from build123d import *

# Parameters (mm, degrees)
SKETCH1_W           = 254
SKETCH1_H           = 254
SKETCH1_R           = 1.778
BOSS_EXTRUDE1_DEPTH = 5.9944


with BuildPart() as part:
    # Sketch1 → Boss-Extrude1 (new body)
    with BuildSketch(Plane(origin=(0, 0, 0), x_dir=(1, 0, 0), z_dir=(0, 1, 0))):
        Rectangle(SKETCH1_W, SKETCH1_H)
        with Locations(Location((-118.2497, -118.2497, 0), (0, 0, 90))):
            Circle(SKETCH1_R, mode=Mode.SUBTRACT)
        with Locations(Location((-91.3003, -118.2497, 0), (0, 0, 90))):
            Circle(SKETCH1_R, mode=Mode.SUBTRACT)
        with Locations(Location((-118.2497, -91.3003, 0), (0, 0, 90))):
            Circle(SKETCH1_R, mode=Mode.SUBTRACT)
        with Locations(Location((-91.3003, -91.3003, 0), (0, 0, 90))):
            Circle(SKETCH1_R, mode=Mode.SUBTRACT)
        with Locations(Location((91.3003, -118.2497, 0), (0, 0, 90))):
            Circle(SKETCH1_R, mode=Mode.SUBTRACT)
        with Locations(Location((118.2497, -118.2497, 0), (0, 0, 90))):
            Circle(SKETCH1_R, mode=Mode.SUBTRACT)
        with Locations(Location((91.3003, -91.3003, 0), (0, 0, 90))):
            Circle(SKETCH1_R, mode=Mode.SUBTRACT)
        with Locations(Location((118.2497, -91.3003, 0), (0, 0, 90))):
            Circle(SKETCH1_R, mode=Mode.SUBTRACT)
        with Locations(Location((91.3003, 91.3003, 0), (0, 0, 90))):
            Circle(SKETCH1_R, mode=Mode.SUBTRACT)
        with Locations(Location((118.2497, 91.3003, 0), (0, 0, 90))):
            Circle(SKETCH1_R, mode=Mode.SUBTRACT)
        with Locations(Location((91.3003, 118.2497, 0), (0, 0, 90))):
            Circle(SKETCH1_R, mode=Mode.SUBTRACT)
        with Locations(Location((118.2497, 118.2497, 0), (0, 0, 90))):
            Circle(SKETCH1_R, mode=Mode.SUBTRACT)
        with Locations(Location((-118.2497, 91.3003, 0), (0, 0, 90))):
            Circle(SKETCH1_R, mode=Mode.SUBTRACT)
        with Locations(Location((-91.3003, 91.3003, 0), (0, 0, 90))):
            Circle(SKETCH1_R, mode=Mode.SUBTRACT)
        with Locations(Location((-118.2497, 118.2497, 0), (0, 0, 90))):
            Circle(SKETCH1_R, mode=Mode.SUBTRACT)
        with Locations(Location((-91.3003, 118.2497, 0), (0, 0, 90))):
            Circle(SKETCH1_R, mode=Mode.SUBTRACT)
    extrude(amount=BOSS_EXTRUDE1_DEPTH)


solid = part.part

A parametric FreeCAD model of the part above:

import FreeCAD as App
import Part
import Sketcher
from FreeCAD import Vector
Q = App.Units.Quantity

doc = App.newDocument("Part")
params = doc.addObject("Spreadsheet::Sheet", "Params")
for row, (alias, value) in enumerate([
    ("sketch1_diameter", "0.14 in"),
    ("sketch1_width", "10 in"),
    ("pad1_length", "0.236 in"),
], start=1):
    params.set(f"A{row}", alias)
    params.set(f"B{row}", "=" + value)
    params.setAlias(f"B{row}", alias)

body = doc.addObject("PartDesign::Body", "Body")

# Sketch on XZ plane
sketch1 = body.newObject("Sketcher::SketchObject", "Sketch")
sketch1.AttachmentSupport = (doc.getObject("XZ_Plane"), [""])
sketch1.MapMode = "FlatFace"
sketch1.addGeometry(Part.LineSegment(Vector(-127, -127, 0), Vector(-127, 127, 0)), False)
sketch1.addGeometry(Part.LineSegment(Vector(-127, 127, 0), Vector(127, 127, 0)), False)
sketch1.addGeometry(Part.LineSegment(Vector(127, 127, 0), Vector(127, -127, 0)), False)
sketch1.addGeometry(Part.LineSegment(Vector(127, -127, 0), Vector(-127, -127, 0)), False)
sketch1.addGeometry(Part.Circle(Vector(-118.2, 118.2, 0), Vector(0, 0, 1), 1.8), False)
sketch1.addGeometry(Part.Circle(Vector(-91.3, 118.2, 0), Vector(0, 0, 1), 1.8), False)
sketch1.addGeometry(Part.Circle(Vector(-118.2, 91.3, 0), Vector(0, 0, 1), 1.8), False)
sketch1.addGeometry(Part.Circle(Vector(-91.3, 91.3, 0), Vector(0, 0, 1), 1.8), False)
sketch1.addGeometry(Part.Circle(Vector(91.3, 118.2, 0), Vector(0, 0, 1), 1.8), False)
sketch1.addGeometry(Part.Circle(Vector(118.2, 118.2, 0), Vector(0, 0, 1), 1.8), False)
sketch1.addGeometry(Part.Circle(Vector(91.3, 91.3, 0), Vector(0, 0, 1), 1.8), False)
sketch1.addGeometry(Part.Circle(Vector(118.2, 91.3, 0), Vector(0, 0, 1), 1.8), False)
sketch1.addGeometry(Part.Circle(Vector(-118.2, -91.3, 0), Vector(0, 0, 1), 1.8), False)
sketch1.addGeometry(Part.Circle(Vector(-91.3, -91.3, 0), Vector(0, 0, 1), 1.8), False)
sketch1.addGeometry(Part.Circle(Vector(-118.2, -118.2, 0), Vector(0, 0, 1), 1.8), False)
sketch1.addGeometry(Part.Circle(Vector(-91.3, -118.2, 0), Vector(0, 0, 1), 1.8), False)
sketch1.addGeometry(Part.Circle(Vector(91.3, -91.3, 0), Vector(0, 0, 1), 1.8), False)
sketch1.addGeometry(Part.Circle(Vector(118.2, -91.3, 0), Vector(0, 0, 1), 1.8), False)
sketch1.addGeometry(Part.Circle(Vector(91.3, -118.2, 0), Vector(0, 0, 1), 1.8), False)
sketch1.addGeometry(Part.Circle(Vector(118.2, -118.2, 0), Vector(0, 0, 1), 1.8), False)
sketch1.addConstraint(Sketcher.Constraint("Coincident", 0, 2, 1, 1))
sketch1.addConstraint(Sketcher.Constraint("Coincident", 1, 2, 2, 1))
sketch1.addConstraint(Sketcher.Constraint("Coincident", 2, 2, 3, 1))
sketch1.addConstraint(Sketcher.Constraint("Coincident", 3, 2, 0, 1))
sketch1.addConstraint(Sketcher.Constraint("Vertical", 0))
sketch1.addConstraint(Sketcher.Constraint("Horizontal", 1))
sketch1.addConstraint(Sketcher.Constraint("Vertical", 2))
sketch1.addConstraint(Sketcher.Constraint("Horizontal", 3))
sketch1.addConstraint(Sketcher.Constraint("Equal", 4, 5))
sketch1.addConstraint(Sketcher.Constraint("Equal", 5, 6))
sketch1.addConstraint(Sketcher.Constraint("Equal", 6, 7))
sketch1.addConstraint(Sketcher.Constraint("Equal", 7, 8))
sketch1.addConstraint(Sketcher.Constraint("Equal", 8, 9))
sketch1.addConstraint(Sketcher.Constraint("Equal", 9, 10))
sketch1.addConstraint(Sketcher.Constraint("Equal", 10, 11))
sketch1.addConstraint(Sketcher.Constraint("Equal", 11, 12))
sketch1.addConstraint(Sketcher.Constraint("Equal", 12, 13))
sketch1.addConstraint(Sketcher.Constraint("Equal", 13, 14))
sketch1.addConstraint(Sketcher.Constraint("Equal", 14, 15))
sketch1.addConstraint(Sketcher.Constraint("Equal", 15, 16))
sketch1.addConstraint(Sketcher.Constraint("Equal", 16, 17))
sketch1.addConstraint(Sketcher.Constraint("Equal", 17, 18))
sketch1.addConstraint(Sketcher.Constraint("Equal", 18, 19))
sketch1.addConstraint(Sketcher.Constraint("Symmetric", 11, 3, 12, 3, -1, 1))
sketch1.addConstraint(Sketcher.Constraint("Symmetric", 10, 3, 13, 3, -1, 1))
sketch1.addConstraint(Sketcher.Constraint("Symmetric", 9, 3, 14, 3, -1, 1))
sketch1.addConstraint(Sketcher.Constraint("Symmetric", 8, 3, 15, 3, -1, 1))
sketch1.addConstraint(Sketcher.Constraint("Symmetric", 7, 3, 16, 3, -1, 1))
sketch1.addConstraint(Sketcher.Constraint("Symmetric", 6, 3, 17, 3, -1, 1))
sketch1.addConstraint(Sketcher.Constraint("Symmetric", 5, 3, 18, 3, -1, 1))
sketch1.addConstraint(Sketcher.Constraint("Symmetric", 4, 3, 19, 3, -1, 1))
sketch1.addConstraint(Sketcher.Constraint("Symmetric", 0, 2, 2, 2, -1, 1))
sketch1.addConstraint(Sketcher.Constraint("Symmetric", 5, 3, 8, 3, -2))
sketch1.addConstraint(Sketcher.Constraint("Symmetric", 4, 3, 9, 3, -2))
sketch1.addConstraint(Sketcher.Constraint("Symmetric", 7, 3, 10, 3, -2))
sketch1.addConstraint(Sketcher.Constraint("Symmetric", 6, 3, 11, 3, -2))
sketch1.addConstraint(Sketcher.Constraint("Horizontal", 4, 3, 5, 3))
sketch1.addConstraint(Sketcher.Constraint("Horizontal", 6, 3, 7, 3))
sketch1.addConstraint(Sketcher.Constraint("Vertical", 4, 3, 6, 3))
sketch1.addConstraint(Sketcher.Constraint("Vertical", 5, 3, 7, 3))
sketch1.addConstraint(Sketcher.Constraint("Equal", 3, 0))
sketch1.addConstraint(Sketcher.Constraint("Diameter", 4, Q("0.14 in")))
sketch1.addConstraint(Sketcher.Constraint("DistanceX", 1, 1, 1, 2, Q("10 in")))
sketch1.addConstraint(Sketcher.Constraint("DistanceX", 4, 3, 8, 3, Q("8.25 in")))
sketch1.addConstraint(Sketcher.Constraint("DistanceY", 12, 3, 4, 3, Q("8.25 in")))
sketch1.addConstraint(Sketcher.Constraint("DistanceX", 4, 3, 5, 3, Q("1.061 in")))
sketch1.addConstraint(Sketcher.Constraint("DistanceY", 6, 3, 4, 3, Q("1.061 in")))
sketch1.setExpression("Constraints[41]", "Params.sketch1_diameter")
sketch1.setExpression("Constraints[42]", "Params.sketch1_width")
pad1 = body.newObject("PartDesign::Pad", "Pad")
pad1.Profile = sketch1
pad1.setExpression("Length", "Params.pad1_length")
pad1.Reversed = True

doc.recompute()
